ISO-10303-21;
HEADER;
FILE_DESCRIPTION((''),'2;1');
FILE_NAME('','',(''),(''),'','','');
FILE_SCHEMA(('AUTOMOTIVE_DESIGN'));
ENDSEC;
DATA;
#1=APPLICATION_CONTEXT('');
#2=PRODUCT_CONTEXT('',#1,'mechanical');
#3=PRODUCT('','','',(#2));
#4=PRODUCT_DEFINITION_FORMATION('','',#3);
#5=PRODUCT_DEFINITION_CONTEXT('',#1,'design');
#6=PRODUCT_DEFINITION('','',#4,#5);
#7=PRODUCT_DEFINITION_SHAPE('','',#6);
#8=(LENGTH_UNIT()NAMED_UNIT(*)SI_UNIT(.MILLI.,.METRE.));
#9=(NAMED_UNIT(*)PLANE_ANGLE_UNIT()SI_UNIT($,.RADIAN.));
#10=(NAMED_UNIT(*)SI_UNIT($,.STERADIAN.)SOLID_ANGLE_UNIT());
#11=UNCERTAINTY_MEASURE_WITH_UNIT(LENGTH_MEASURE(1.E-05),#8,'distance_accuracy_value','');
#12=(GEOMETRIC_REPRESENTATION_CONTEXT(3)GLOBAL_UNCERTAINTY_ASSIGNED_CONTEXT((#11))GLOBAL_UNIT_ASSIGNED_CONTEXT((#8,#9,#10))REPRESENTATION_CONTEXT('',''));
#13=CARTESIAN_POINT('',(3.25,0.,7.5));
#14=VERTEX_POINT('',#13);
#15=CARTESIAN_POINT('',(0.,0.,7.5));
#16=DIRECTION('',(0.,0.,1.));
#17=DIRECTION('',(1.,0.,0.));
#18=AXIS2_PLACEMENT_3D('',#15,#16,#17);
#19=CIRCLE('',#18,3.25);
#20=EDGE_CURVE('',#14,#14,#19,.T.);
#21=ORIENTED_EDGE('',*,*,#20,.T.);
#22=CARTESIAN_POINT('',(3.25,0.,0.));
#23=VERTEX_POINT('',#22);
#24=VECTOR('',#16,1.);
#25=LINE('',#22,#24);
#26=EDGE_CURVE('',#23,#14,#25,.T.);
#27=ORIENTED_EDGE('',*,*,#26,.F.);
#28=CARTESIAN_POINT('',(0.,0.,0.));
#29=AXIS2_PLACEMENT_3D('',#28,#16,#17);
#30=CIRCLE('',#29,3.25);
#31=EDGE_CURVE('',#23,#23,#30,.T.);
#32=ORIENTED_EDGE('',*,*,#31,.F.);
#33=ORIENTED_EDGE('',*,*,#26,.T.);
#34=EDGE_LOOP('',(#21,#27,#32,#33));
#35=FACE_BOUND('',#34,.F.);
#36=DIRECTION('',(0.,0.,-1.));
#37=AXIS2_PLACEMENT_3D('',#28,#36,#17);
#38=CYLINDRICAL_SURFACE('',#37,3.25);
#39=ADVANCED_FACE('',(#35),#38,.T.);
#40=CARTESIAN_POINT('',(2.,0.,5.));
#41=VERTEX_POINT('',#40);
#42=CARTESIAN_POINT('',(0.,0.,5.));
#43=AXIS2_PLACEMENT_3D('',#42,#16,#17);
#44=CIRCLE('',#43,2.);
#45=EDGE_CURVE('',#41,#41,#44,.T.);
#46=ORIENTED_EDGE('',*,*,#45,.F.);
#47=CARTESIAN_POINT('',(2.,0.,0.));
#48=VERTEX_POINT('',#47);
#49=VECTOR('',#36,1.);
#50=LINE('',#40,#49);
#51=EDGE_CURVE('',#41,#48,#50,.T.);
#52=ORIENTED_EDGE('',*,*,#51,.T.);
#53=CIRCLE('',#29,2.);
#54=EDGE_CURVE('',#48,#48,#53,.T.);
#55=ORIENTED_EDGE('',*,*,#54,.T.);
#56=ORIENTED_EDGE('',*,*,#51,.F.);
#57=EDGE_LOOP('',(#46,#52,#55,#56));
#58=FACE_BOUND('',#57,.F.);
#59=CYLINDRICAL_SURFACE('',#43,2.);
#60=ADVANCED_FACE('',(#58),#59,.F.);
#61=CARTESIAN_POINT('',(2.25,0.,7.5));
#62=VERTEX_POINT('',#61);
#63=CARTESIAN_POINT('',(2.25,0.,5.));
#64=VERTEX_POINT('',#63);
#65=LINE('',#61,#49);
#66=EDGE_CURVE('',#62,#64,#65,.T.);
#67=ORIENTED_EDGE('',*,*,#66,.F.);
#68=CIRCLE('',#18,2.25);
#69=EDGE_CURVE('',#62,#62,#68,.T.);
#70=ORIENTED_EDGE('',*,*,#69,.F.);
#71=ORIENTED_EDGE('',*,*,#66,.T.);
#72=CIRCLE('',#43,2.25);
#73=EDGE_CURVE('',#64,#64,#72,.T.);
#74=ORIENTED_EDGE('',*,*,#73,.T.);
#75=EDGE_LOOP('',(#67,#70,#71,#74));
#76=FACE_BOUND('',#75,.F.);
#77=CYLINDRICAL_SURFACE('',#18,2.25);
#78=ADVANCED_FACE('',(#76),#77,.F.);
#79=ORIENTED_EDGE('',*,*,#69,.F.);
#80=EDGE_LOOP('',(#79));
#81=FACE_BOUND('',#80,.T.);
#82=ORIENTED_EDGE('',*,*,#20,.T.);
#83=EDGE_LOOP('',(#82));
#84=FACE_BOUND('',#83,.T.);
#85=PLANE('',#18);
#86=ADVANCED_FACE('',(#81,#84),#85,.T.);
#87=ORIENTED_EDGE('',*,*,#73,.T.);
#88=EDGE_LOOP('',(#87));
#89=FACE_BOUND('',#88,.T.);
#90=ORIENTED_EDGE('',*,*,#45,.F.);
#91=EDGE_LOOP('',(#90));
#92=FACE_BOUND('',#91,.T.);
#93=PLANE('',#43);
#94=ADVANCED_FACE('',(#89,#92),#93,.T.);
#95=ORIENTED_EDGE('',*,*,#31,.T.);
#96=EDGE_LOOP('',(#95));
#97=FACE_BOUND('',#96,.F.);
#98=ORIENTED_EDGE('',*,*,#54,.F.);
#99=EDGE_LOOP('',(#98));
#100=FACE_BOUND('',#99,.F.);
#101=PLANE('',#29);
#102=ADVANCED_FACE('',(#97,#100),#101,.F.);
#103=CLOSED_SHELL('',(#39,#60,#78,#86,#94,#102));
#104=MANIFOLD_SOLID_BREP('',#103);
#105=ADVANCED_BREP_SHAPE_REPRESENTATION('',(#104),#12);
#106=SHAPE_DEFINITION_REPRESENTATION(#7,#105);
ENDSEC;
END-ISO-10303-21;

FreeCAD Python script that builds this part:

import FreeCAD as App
import Part
import Sketcher

doc = App.newDocument("Part")
body = doc.addObject("PartDesign::Body", "Body")

sketch1 = doc.addObject("Sketcher::SketchObject", "Sketch")
body.addObject(sketch1)
sketch1.AttachmentSupport = (doc.XY_Plane, [""])
sketch1.MapMode = "FlatFace"
sketch1.addGeometry(Part.Circle(App.Vector(0, 0, 0), App.Vector(0, 0, 1), 3.2), False)
sketch1.addConstraint([
    Sketcher.Constraint("Coincident", 0, 3, -1, 1),
    Sketcher.Constraint("Diameter", 0, 6.5),
])
pad1 = doc.addObject("PartDesign::Pad", "Pad")
body.addObject(pad1)
pad1.Profile = sketch1
pad1.Length = 7.5

sketch2 = doc.addObject("Sketcher::SketchObject", "Sketch001")
body.addObject(sketch2)
sketch2.AttachmentSupport = (doc.XY_Plane, [""])
sketch2.MapMode = "FlatFace"
sketch2.AttachmentOffset = App.Placement(App.Vector(0, 0, 7.5), App.Rotation())
sketch2.addGeometry(Part.Circle(App.Vector(0, 0, 0), App.Vector(0, 0, 1), 2.2), False)
sketch2.addConstraint([
    Sketcher.Constraint("Coincident", 0, 3, -1, 1),
    Sketcher.Constraint("Diameter", 0, 4.5),
])
pocket1 = doc.addObject("PartDesign::Pocket", "Pocket")
body.addObject(pocket1)
pocket1.Profile = sketch2
pocket1.Length = 2.5

sketch3 = doc.addObject("Sketcher::SketchObject", "Sketch002")
body.addObject(sketch3)
sketch3.AttachmentSupport = (doc.XY_Plane, [""])
sketch3.MapMode = "FlatFace"
sketch3.AttachmentOffset = App.Placement(App.Vector(0, 0, 5), App.Rotation())
sketch3.addGeometry(Part.Circle(App.Vector(0, 0, 0), App.Vector(0, 0, 1), 2), False)
sketch3.addConstraint([
    Sketcher.Constraint("Coincident", 0, 3, -1, 1),
    Sketcher.Constraint("Diameter", 0, 4.0),
])
pocket2 = doc.addObject("PartDesign::Pocket", "Pocket001")
body.addObject(pocket2)
pocket2.Profile = sketch3
pocket2.Length = 7

doc.recompute()
